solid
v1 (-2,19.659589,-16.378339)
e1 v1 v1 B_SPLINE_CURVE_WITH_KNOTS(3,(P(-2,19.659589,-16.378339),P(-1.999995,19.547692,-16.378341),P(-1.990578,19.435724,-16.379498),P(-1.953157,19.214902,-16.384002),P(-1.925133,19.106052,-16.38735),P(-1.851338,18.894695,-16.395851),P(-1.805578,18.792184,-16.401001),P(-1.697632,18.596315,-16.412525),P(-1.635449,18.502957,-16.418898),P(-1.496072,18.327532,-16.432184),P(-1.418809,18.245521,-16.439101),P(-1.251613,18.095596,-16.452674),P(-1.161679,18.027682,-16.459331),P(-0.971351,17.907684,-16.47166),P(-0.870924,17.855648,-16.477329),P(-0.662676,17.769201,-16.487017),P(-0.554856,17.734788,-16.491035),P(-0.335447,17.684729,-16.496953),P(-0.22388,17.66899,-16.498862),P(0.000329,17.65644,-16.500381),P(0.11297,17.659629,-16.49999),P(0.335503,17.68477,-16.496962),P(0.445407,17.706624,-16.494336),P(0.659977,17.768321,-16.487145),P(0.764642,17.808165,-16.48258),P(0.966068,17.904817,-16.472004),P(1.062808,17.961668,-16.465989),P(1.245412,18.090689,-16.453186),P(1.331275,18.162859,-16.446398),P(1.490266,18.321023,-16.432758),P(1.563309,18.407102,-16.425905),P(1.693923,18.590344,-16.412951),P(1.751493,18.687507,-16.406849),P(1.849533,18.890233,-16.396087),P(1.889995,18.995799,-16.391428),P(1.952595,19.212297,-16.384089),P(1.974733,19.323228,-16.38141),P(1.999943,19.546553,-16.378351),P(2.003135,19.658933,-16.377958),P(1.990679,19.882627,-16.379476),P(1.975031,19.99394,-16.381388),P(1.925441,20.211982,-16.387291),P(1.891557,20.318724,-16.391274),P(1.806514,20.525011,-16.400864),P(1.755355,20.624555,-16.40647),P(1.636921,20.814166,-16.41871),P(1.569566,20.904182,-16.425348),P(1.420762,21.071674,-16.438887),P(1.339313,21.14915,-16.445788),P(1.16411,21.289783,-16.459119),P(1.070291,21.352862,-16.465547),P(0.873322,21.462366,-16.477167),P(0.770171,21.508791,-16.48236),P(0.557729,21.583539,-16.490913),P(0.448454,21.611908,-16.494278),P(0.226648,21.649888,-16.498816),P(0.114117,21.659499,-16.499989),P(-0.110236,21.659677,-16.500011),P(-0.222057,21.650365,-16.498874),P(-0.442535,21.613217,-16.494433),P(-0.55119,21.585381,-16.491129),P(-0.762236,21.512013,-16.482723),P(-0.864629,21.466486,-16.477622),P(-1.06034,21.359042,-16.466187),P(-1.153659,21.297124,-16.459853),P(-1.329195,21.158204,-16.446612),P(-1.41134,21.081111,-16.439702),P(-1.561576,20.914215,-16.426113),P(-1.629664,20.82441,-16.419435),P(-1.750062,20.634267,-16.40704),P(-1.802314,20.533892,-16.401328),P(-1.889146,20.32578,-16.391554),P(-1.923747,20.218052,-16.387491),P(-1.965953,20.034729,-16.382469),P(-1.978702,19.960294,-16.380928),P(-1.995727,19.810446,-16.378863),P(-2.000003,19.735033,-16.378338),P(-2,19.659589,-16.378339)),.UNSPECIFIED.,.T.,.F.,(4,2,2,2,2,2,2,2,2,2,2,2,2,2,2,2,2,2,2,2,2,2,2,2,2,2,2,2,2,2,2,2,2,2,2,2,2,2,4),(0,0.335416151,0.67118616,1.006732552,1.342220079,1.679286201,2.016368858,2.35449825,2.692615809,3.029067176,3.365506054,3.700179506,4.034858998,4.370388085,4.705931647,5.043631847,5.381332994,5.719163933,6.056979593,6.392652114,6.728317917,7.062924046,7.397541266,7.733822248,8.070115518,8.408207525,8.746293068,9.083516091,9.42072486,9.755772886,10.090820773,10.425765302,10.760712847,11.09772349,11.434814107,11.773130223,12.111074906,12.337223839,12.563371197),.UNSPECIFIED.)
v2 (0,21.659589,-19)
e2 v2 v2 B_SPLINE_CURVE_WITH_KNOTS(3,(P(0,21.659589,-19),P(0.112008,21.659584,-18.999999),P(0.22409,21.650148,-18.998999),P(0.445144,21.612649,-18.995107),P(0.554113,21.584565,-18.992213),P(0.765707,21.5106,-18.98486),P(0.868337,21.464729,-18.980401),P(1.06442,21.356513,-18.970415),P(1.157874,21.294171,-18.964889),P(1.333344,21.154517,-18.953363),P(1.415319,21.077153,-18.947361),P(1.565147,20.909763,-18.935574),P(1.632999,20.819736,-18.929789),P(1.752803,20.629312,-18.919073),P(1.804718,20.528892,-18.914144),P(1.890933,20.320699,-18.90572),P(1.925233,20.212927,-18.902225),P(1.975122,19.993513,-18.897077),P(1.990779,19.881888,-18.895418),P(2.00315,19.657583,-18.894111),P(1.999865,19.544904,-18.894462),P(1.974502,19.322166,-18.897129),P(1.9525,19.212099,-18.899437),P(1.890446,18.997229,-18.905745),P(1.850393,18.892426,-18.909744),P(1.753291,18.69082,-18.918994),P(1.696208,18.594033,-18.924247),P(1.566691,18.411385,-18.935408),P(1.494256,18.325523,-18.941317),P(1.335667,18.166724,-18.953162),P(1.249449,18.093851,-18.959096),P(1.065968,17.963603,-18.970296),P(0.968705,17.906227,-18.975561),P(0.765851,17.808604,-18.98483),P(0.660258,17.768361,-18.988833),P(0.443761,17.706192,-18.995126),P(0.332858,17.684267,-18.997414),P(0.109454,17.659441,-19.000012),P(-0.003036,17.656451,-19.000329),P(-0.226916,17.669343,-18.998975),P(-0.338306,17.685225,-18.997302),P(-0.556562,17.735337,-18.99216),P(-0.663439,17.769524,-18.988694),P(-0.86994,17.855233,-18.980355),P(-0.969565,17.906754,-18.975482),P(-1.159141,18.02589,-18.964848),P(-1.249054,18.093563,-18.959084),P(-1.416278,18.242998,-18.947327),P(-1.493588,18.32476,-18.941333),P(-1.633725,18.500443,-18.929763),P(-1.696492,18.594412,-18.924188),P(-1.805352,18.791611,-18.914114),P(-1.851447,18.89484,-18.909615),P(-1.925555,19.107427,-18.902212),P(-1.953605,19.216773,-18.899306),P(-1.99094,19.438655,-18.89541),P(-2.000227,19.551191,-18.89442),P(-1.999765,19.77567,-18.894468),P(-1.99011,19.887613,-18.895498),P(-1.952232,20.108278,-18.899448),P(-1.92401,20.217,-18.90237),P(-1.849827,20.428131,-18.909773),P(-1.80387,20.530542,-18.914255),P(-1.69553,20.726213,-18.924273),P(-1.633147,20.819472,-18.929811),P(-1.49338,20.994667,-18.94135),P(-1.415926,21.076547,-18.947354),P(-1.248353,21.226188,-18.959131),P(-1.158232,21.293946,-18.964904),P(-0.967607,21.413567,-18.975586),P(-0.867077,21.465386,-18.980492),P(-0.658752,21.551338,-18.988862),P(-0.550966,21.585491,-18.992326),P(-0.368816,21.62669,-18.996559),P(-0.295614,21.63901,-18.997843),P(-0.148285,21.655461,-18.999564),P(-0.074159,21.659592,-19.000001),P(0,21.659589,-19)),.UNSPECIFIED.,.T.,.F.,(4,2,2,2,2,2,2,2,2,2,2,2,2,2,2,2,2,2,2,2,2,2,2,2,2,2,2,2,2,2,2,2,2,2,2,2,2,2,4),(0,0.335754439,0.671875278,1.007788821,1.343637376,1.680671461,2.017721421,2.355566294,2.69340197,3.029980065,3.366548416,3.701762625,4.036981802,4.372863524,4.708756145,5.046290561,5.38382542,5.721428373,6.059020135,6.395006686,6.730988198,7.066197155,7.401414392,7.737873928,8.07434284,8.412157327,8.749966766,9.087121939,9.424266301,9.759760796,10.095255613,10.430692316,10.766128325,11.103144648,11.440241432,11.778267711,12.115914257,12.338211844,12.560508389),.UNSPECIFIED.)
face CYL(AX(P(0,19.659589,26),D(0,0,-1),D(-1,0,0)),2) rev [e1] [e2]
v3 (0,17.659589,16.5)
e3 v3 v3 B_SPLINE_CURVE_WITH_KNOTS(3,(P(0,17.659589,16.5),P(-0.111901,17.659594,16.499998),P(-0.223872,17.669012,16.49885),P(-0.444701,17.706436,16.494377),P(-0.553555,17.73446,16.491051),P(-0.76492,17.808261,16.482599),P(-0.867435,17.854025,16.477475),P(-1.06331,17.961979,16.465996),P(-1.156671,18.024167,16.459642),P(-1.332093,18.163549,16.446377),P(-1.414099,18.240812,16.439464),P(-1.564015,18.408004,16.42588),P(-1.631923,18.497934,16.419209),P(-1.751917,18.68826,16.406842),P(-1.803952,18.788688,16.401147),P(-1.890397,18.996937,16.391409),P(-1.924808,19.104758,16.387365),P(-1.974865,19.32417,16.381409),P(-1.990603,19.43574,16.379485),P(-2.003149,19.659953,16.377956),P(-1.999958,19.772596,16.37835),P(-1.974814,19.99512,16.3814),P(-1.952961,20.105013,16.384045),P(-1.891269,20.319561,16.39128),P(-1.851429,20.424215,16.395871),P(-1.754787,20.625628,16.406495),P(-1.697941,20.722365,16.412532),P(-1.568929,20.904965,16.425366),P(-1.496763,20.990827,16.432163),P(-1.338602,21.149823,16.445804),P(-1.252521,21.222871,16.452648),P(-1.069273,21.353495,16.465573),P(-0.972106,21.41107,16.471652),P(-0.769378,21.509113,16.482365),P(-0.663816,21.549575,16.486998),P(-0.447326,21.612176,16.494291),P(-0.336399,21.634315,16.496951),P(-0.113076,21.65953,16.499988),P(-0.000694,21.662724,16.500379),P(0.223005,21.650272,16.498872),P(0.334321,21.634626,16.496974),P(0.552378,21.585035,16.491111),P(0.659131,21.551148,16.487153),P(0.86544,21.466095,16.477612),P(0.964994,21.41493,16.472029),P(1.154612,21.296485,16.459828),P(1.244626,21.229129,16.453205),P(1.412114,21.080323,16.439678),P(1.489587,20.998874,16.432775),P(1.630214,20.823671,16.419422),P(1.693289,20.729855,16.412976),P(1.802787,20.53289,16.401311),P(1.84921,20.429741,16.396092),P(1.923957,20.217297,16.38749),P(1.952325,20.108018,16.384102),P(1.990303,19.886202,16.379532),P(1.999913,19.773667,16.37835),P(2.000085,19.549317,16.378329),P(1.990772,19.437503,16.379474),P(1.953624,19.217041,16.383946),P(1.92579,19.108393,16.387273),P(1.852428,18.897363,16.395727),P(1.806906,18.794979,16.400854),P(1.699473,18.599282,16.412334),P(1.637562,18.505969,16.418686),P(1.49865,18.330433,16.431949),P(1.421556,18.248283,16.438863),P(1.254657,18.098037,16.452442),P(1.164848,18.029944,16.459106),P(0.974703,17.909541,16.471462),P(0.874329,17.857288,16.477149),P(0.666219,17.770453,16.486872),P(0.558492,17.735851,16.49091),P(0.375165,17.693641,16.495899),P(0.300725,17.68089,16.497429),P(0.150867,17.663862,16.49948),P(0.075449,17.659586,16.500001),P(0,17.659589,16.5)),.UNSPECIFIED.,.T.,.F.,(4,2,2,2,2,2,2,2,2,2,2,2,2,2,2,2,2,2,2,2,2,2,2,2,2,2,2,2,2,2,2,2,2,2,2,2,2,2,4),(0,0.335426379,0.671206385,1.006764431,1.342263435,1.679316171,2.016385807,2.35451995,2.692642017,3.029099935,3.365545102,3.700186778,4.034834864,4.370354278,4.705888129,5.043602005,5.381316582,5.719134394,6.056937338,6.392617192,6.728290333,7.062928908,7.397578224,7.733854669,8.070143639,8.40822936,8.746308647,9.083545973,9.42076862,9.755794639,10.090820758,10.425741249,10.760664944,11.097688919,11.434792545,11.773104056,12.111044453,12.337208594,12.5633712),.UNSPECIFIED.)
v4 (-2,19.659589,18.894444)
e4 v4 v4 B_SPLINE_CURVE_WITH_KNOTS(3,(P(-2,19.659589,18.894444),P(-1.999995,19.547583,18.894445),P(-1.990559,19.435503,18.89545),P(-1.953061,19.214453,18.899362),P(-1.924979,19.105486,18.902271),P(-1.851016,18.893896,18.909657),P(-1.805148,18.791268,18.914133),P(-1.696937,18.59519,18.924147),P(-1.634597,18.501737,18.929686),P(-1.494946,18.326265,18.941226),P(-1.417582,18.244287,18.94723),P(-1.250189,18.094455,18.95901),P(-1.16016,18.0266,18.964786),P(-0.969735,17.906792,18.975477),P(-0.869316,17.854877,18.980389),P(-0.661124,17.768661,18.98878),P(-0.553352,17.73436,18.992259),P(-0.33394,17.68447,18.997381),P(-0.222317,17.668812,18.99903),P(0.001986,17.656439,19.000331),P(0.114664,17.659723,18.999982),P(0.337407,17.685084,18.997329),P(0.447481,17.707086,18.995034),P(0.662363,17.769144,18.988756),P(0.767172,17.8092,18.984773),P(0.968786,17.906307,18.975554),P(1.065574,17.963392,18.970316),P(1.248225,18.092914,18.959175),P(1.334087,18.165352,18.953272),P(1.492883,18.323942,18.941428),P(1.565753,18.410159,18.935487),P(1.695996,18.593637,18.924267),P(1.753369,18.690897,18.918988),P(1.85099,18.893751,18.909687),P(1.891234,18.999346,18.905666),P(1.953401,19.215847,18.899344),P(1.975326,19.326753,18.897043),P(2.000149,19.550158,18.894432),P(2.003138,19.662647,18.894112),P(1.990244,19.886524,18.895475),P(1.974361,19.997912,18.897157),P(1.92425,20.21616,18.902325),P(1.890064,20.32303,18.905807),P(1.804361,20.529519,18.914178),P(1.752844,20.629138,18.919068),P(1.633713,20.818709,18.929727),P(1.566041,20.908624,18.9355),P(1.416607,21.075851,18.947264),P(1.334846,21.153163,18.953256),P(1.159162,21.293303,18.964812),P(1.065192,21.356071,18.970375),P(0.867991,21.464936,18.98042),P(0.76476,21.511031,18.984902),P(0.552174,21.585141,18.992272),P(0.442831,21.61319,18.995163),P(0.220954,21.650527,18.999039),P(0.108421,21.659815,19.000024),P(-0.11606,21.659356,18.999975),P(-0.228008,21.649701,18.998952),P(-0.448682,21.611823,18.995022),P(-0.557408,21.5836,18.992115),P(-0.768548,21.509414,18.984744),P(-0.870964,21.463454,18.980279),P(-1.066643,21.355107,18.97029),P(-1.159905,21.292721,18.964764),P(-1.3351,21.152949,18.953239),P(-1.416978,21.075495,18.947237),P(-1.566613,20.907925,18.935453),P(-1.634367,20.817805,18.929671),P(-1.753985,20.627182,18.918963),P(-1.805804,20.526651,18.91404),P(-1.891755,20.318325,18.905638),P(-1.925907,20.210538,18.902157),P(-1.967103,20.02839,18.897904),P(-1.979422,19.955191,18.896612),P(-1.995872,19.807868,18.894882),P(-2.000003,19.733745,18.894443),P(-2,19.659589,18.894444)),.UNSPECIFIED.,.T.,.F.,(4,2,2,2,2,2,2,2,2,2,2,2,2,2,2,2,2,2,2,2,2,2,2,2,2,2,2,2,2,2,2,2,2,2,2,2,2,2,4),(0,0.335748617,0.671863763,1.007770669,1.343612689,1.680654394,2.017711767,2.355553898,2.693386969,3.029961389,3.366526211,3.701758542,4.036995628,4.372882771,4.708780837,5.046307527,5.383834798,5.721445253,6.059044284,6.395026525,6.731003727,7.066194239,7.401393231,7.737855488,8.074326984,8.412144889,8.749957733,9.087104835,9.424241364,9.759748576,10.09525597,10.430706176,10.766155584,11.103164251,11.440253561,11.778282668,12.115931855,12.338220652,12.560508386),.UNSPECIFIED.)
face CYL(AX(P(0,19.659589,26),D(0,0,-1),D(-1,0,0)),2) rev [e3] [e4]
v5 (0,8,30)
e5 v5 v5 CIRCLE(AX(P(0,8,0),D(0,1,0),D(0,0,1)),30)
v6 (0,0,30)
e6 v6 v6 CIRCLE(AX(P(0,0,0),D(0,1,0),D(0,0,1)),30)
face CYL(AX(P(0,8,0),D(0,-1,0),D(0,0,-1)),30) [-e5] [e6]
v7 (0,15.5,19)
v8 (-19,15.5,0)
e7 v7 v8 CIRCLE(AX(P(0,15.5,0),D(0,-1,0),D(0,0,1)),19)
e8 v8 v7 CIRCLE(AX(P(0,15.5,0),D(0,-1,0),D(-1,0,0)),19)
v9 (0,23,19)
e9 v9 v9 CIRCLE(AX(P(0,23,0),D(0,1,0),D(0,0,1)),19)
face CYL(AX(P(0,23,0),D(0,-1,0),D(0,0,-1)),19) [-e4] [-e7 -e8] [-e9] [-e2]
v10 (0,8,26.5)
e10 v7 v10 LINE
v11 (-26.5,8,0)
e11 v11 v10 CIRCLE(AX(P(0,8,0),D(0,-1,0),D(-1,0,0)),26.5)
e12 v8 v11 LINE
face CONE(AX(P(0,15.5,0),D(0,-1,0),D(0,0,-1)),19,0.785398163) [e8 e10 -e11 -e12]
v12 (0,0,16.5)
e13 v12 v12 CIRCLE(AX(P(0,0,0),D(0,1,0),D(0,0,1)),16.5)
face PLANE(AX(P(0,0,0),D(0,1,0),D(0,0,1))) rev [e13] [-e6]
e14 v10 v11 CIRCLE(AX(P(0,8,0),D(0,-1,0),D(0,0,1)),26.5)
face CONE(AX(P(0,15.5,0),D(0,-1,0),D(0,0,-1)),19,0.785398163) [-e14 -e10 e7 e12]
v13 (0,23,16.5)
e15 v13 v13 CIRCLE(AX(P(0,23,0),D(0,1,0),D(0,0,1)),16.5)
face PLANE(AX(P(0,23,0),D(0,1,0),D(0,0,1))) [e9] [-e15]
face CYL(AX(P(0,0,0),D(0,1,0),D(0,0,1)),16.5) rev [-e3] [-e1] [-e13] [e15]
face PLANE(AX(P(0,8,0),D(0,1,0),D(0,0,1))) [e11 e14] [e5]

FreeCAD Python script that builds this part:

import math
import FreeCAD as App
import Part
import Sketcher
Q = App.Units.Quantity

doc = App.newDocument("Part")
body = doc.addObject("PartDesign::Body", "Body")

# Sketch on XZ plane
sketch1 = body.newObject("Sketcher::SketchObject", "Sketch")
sketch1.AttachmentSupport = (doc.getObject("XZ_Plane"), [""])
sketch1.MapMode = "FlatFace"
sketch1.addGeometry(Part.Circle(App.Vector(0, 0, 0), App.Vector(0, 0, 1), 30), False)
sketch1.addConstraint([
    Sketcher.Constraint("Coincident", 0, 3, -1, 1),
    Sketcher.Constraint("Diameter", 0, Q("60 mm")),
])
pad1 = body.newObject("PartDesign::Pad", "Pad")
pad1.Profile = sketch1
pad1.Length = 8
pad1.Reversed = True

# Sketch on XZ plane
sketch2 = body.newObject("Sketcher::SketchObject", "Sketch001")
sketch2.AttachmentSupport = (doc.getObject("XZ_Plane"), [""])
sketch2.MapMode = "FlatFace"
sketch2.AttachmentOffset = App.Placement(App.Vector(0, 0, -8), App.Rotation())
sketch2.addGeometry(Part.Circle(App.Vector(0, 0, 0), App.Vector(0, 0, 1), 16.5), False)
sketch2.addConstraint([
    Sketcher.Constraint("Coincident", 0, 3, -1, 1),
    Sketcher.Constraint("Diameter", 0, Q("33 mm")),
])
pocket1 = body.newObject("PartDesign::Pocket", "Pocket")
pocket1.Profile = sketch2
pocket1.Length = 8
pocket1.Reversed = True

# Sketch on XZ plane
sketch3 = body.newObject("Sketcher::SketchObject", "Sketch002")
sketch3.AttachmentSupport = (doc.getObject("XZ_Plane"), [""])
sketch3.MapMode = "FlatFace"
sketch3.AttachmentOffset = App.Placement(App.Vector(0, 0, -23), App.Rotation())
sketch3.addGeometry([
    Part.Circle(App.Vector(0, 0, 0), App.Vector(0, 0, 1), 19),
    Part.Circle(App.Vector(0, 0, 0), App.Vector(0, 0, 1), 16.5),
], False)
sketch3.addConstraint([
    Sketcher.Constraint("Coincident", 0, 3, -1, 1),
    Sketcher.Constraint("Coincident", 1, 3, -1, 1),
    Sketcher.Constraint("Diameter", 0, Q("38 mm")),
    Sketcher.Constraint("Diameter", 1, Q("33 mm")),
])
pad2 = body.newObject("PartDesign::Pad", "Pad001")
pad2.Profile = sketch3
pad2.Length = 15

# Sketch on XY plane
sketch4 = body.newObject("Sketcher::SketchObject", "Sketch003")
sketch4.AttachmentSupport = (doc.getObject("XY_Plane"), [""])
sketch4.MapMode = "FlatFace"
sketch4.addGeometry([
    Part.LineSegment(App.Vector(-19, 8, 0), App.Vector(-19, 15.5, 0)),
    Part.LineSegment(App.Vector(-19, 15.5, 0), App.Vector(-26.5, 8, 0)),
    Part.LineSegment(App.Vector(-26.5, 8, 0), App.Vector(-19, 8, 0)),
], False)
sketch4.addConstraint([
    Sketcher.Constraint("Coincident", 0, 2, 1, 1),
    Sketcher.Constraint("Coincident", 1, 2, 2, 1),
    Sketcher.Constraint("Coincident", 2, 2, 0, 1),
    Sketcher.Constraint("Vertical", 0),
    Sketcher.Constraint("Horizontal", 2),
    Sketcher.Constraint("Equal", 2, 0),
    Sketcher.Constraint("DistanceX", 2, 1, 2, 2, Q("7.5 mm")),
    Sketcher.Constraint("DistanceX", 0, 2, -1, 1, Q("19 mm")),
    Sketcher.Constraint("DistanceY", -1, 1, 1, 2, Q("8 mm")),
])

# Sketch on XZ plane
sketch5 = body.newObject("Sketcher::SketchObject", "Sketch004")
sketch5.AttachmentSupport = (doc.getObject("XZ_Plane"), [""])
sketch5.MapMode = "FlatFace"
sketch5.AttachmentOffset = App.Placement(App.Vector(0, 0, -8), App.Rotation())
sketch5.addGeometry([
    Part.ArcOfCircle(Part.Circle(App.Vector(0, 0, 0), App.Vector(0, 0, 1), 19), math.radians(0), math.radians(90)),
    Part.ArcOfCircle(Part.Circle(App.Vector(0, 0, 0), App.Vector(0, 0, 1), 19), math.radians(-90), math.radians(0)),
    Part.ArcOfCircle(Part.Circle(App.Vector(0, 0, 0), App.Vector(0, 0, 1), 19), math.radians(180), math.radians(270)),
    Part.ArcOfCircle(Part.Circle(App.Vector(0, 0, 0), App.Vector(0, 0, 1), 19), math.radians(90), math.radians(180)),
], False)
sketch5.addConstraint([
    Sketcher.Constraint("Tangent", 0, 1, 1, 2),
    Sketcher.Constraint("Tangent", 1, 1, 2, 2),
    Sketcher.Constraint("Tangent", 2, 1, 3, 2),
    Sketcher.Constraint("Tangent", 3, 1, 0, 2),
    Sketcher.Constraint("Coincident", 0, 3, -1, 1),
    Sketcher.Constraint("Equal", 0, 1),
    Sketcher.Constraint("PointOnObject", 0, 1, -1),
    Sketcher.Constraint("PointOnObject", 1, 1, -2),
    Sketcher.Constraint("PointOnObject", 2, 1, -1),
    Sketcher.Constraint("PointOnObject", 3, 1, -2),
    Sketcher.Constraint("Radius", 0, Q("19 mm")),
])
doc.recompute()

additivepipe = body.newObject("PartDesign::AdditivePipe", "AdditivePipe")
additivepipe.Profile = sketch4
additivepipe.Spine = (sketch5, ["Edge1", "Edge2", "Edge3", "Edge4"])

# Sketch on XY plane
sketch6 = body.newObject("Sketcher::SketchObject", "Sketch005")
sketch6.AttachmentSupport = (doc.getObject("XY_Plane"), [""])
sketch6.MapMode = "FlatFace"
sketch6.addGeometry(Part.Circle(App.Vector(0, 19.659589, 0), App.Vector(0, 0, 1), 2), False)
sketch6.addConstraint([
    Sketcher.Constraint("PointOnObject", 0, 3, -2),
    Sketcher.Constraint("Diameter", 0, Q("4 mm")),
    Sketcher.Constraint("DistanceY", -1, 1, 0, 3, Q("19.659589 mm")),
])
pocket2 = body.newObject("PartDesign::Pocket", "Pocket001")
pocket2.Profile = sketch6
pocket2.Type = "ThroughAll"
pocket2.Midplane = True

doc.recompute()
